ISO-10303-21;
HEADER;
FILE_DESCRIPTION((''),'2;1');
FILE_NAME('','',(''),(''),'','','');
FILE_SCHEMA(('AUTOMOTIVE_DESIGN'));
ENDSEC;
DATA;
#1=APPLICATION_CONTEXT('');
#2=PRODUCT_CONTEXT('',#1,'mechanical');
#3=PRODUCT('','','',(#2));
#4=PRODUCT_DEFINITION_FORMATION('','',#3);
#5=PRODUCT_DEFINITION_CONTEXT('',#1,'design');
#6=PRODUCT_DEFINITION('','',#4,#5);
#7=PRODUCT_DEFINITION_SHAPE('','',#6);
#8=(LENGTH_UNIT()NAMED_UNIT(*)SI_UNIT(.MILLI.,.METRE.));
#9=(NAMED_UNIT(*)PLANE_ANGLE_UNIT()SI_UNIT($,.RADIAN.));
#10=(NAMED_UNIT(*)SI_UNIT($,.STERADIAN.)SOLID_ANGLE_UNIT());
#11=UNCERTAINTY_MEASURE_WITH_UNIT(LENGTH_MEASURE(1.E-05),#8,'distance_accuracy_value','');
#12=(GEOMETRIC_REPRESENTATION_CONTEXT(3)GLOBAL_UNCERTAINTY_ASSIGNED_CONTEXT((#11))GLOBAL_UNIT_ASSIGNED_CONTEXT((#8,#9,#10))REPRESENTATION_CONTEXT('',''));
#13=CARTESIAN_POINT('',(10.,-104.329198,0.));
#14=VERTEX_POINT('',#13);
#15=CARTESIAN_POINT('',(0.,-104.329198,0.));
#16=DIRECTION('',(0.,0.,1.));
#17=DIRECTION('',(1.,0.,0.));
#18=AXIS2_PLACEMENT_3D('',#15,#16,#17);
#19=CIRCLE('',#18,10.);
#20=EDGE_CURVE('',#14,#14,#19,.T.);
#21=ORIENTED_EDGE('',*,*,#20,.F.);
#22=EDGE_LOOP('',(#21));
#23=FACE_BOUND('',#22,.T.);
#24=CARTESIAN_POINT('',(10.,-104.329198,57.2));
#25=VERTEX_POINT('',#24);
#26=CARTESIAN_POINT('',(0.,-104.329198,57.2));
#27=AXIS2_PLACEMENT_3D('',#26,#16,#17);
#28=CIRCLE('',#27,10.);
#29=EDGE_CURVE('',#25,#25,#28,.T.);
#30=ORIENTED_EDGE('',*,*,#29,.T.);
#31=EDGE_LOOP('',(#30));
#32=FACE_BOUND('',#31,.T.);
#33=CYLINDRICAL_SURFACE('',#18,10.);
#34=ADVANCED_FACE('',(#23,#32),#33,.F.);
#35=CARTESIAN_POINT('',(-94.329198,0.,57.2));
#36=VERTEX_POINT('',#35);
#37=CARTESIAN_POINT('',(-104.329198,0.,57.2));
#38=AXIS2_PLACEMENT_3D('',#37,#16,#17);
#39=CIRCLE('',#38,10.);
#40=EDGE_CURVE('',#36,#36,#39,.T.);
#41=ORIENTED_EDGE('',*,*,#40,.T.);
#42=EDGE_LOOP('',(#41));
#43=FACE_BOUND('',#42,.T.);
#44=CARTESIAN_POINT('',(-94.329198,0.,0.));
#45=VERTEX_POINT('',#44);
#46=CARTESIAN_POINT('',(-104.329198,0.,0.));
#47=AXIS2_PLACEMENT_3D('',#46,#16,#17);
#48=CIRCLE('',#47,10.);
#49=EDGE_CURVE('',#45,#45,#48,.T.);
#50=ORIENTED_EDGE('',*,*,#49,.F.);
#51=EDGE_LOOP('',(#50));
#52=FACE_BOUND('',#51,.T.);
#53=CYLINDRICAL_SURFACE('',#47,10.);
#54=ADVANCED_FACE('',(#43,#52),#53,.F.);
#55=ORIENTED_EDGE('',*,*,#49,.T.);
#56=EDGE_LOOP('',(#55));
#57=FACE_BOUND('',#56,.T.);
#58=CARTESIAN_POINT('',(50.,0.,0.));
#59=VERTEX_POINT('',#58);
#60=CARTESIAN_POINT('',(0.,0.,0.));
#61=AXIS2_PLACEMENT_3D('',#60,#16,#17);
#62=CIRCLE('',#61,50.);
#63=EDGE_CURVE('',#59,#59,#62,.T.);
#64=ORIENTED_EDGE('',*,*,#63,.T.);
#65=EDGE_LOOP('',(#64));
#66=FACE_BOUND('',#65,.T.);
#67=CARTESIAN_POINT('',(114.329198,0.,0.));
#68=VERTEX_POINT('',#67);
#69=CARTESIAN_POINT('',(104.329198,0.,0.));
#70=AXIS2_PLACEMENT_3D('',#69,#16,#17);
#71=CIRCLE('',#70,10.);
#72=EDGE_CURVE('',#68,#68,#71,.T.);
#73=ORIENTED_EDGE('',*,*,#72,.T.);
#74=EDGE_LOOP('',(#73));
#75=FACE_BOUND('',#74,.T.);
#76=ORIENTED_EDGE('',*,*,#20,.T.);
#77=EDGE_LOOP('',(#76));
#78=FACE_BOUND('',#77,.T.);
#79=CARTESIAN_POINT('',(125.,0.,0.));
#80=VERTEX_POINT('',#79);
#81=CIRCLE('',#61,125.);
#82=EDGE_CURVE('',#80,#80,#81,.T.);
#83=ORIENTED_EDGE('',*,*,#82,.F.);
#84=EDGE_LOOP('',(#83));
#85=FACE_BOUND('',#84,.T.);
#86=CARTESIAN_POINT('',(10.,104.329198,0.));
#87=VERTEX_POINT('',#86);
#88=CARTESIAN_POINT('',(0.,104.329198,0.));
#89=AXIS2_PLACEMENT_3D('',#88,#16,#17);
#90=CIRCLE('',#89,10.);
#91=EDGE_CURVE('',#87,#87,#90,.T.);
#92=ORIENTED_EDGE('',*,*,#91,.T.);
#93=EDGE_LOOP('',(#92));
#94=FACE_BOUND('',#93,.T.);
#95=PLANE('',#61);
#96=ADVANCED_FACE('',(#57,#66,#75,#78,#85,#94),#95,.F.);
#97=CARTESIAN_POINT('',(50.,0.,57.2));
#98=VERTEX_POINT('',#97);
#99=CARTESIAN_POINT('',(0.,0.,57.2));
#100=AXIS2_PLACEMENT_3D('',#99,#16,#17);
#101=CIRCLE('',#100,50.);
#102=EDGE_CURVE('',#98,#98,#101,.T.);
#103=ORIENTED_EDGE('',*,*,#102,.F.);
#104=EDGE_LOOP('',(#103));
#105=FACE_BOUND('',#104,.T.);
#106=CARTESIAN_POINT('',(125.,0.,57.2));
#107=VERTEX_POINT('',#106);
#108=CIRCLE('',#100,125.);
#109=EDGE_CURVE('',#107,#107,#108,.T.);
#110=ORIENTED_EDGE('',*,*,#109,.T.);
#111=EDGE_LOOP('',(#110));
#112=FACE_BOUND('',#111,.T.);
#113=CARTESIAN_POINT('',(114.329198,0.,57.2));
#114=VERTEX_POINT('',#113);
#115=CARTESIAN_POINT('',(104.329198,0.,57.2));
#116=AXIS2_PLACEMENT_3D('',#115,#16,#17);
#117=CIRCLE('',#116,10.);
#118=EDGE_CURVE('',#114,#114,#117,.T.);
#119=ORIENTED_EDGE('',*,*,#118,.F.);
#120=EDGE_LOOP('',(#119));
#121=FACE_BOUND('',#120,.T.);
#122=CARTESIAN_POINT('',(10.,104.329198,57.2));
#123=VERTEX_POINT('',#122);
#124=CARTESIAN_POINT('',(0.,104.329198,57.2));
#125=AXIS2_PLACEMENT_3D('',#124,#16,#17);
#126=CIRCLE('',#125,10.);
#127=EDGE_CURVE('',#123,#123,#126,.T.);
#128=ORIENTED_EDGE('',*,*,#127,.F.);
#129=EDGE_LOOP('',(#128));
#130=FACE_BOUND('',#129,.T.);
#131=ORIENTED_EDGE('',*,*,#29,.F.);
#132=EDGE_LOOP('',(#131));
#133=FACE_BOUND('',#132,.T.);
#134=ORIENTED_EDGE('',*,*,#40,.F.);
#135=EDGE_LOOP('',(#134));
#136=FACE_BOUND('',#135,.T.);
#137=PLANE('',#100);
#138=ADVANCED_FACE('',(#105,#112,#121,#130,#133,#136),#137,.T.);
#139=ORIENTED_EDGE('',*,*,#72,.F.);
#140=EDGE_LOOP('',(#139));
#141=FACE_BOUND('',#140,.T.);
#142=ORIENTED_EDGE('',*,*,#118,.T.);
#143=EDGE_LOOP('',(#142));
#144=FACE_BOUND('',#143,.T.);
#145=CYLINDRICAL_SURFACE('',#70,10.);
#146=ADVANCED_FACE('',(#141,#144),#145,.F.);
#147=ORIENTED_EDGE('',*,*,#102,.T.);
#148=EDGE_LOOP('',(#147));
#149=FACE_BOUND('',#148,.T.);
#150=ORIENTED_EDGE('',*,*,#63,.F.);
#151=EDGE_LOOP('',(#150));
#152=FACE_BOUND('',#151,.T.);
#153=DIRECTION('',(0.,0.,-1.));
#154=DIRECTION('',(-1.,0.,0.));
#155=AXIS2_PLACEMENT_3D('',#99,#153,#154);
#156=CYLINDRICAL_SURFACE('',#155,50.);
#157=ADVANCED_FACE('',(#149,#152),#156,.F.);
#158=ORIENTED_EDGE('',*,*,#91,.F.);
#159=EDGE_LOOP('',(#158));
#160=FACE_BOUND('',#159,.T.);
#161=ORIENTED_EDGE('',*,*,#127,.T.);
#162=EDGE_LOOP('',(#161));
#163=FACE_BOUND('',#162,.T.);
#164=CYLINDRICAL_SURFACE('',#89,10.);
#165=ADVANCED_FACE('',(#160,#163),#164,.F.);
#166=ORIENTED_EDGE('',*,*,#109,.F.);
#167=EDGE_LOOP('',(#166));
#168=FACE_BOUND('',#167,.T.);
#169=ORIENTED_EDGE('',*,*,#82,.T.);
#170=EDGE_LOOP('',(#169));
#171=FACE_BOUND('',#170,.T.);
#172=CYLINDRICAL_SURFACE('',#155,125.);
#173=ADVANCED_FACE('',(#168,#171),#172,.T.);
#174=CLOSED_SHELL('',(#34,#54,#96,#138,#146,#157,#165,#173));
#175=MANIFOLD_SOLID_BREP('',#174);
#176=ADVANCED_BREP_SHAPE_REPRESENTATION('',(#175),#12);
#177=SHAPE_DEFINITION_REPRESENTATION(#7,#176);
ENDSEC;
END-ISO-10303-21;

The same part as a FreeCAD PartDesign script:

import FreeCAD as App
import Part
import Sketcher
from FreeCAD import Vector

doc = App.newDocument("Part")
params = doc.addObject("Spreadsheet::Sheet", "Params")
for row, (alias, value) in enumerate([
    ("sketch1_diameter", "250 mm"),
    ("sketch1_diameter2", "100 mm"),
    ("pad1_length", "57.2 mm"),
    ("sketch2_diameter", "20 mm"),
    ("pocket1_length", "57.2 mm"),
], start=1):
    params.set(f"A{row}", alias)
    params.set(f"B{row}", "=" + value)
    params.setAlias(f"B{row}", alias)

body = doc.addObject("PartDesign::Body", "Body")

sketch1 = body.newObject("Sketcher::SketchObject", "Sketch")
sketch1.AttachmentSupport = (doc.getObject("XY_Plane"), [""])
sketch1.MapMode = "FlatFace"
sketch1.addGeometry([
    Part.Circle(Vector(0, 0, 0), Vector(0, 0, 1), 125),
    Part.Circle(Vector(0, 0, 0), Vector(0, 0, 1), 50),
], False)
sketch1.addConstraint([
    Sketcher.Constraint("Coincident", 0, 3, -1, 1),
    Sketcher.Constraint("Coincident", 1, 3, -1, 1),
    Sketcher.Constraint("Diameter", 0, 250.0),
    Sketcher.Constraint("Diameter", 1, 100.0),
])
sketch1.setExpression("Constraints[2]", "Params.sketch1_diameter")
sketch1.setExpression("Constraints[3]", "Params.sketch1_diameter2")
pad1 = body.newObject("PartDesign::Pad", "Pad")
pad1.Profile = sketch1
pad1.setExpression("Length", "Params.pad1_length")

sketch2 = body.newObject("Sketcher::SketchObject", "Sketch001")
sketch2.AttachmentSupport = (doc.getObject("XY_Plane"), [""])
sketch2.MapMode = "FlatFace"
sketch2.AttachmentOffset = App.Placement(Vector(0, 0, 57.2), App.Rotation())
sketch2.addGeometry([
    Part.Circle(Vector(-104, 0, 0), Vector(0, 0, 1), 10),
    Part.Circle(Vector(0, 104, 0), Vector(0, 0, 1), 10),
    Part.Circle(Vector(104, 0, 0), Vector(0, 0, 1), 10),
    Part.Circle(Vector(0, -104, 0), Vector(0, 0, 1), 10),
], False)
sketch2.addConstraint([
    Sketcher.Constraint("Equal", 0, 1),
    Sketcher.Constraint("Equal", 1, 2),
    Sketcher.Constraint("Equal", 2, 3),
    Sketcher.Constraint("Symmetric", 0, 3, 2, 3, -1, 1),
    Sketcher.Constraint("Symmetric", 1, 3, 3, 3, -1, 1),
    Sketcher.Constraint("PointOnObject", 0, 3, -1),
    Sketcher.Constraint("PointOnObject", 1, 3, -2),
    Sketcher.Constraint("Diameter", 0, 20.0),
    Sketcher.Constraint("DistanceX", 0, 3, -1, 1, 104.329198),
    Sketcher.Constraint("DistanceY", -1, 1, 1, 3, 104.329198),
])
sketch2.setExpression("Constraints[7]", "Params.sketch2_diameter")
pocket1 = body.newObject("PartDesign::Pocket", "Pocket")
pocket1.Profile = sketch2
pocket1.setExpression("Length", "Params.pocket1_length")

doc.recompute()
